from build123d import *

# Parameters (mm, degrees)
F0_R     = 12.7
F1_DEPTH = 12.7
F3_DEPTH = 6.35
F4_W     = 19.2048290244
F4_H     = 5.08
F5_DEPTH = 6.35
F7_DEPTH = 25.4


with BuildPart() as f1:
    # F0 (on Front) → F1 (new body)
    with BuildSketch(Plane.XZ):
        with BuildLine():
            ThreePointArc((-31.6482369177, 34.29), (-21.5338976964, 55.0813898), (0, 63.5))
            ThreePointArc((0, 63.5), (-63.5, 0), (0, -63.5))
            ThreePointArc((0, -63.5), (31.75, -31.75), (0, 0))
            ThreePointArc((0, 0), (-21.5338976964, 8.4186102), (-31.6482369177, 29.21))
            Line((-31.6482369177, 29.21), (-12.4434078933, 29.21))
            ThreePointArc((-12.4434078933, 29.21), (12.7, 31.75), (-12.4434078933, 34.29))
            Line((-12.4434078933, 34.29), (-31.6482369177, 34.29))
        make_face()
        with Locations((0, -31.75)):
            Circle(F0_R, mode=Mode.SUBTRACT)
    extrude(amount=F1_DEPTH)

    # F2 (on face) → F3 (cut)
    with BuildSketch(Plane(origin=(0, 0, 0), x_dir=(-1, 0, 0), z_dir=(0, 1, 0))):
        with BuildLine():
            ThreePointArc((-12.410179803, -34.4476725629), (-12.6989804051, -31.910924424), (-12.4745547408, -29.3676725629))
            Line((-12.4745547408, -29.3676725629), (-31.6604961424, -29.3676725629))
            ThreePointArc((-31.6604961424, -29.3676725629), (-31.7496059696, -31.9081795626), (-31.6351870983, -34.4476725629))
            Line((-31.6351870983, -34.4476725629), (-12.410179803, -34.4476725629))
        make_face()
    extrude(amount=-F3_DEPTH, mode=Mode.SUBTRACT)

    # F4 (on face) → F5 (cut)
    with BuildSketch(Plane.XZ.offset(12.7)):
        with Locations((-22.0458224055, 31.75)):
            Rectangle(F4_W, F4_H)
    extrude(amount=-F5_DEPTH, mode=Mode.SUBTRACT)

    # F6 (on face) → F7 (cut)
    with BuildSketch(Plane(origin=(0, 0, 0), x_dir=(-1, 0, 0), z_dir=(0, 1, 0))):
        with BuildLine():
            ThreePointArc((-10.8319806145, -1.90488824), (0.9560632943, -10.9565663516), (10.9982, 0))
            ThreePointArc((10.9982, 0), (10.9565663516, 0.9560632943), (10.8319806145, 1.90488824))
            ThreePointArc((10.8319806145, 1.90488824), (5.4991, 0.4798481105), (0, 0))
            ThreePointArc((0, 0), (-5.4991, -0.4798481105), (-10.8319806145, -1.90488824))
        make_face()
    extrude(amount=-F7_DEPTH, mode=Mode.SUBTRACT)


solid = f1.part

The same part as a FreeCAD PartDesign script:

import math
import FreeCAD as App
import Part
import Sketcher
from FreeCAD import Vector
Q = App.Units.Quantity

doc = App.newDocument("Part")
body = doc.addObject("PartDesign::Body", "Body")

# Sketch on XZ plane
sketch1 = body.newObject("Sketcher::SketchObject", "Sketch")
sketch1.AttachmentSupport = (doc.getObject("XZ_Plane"), [""])
sketch1.MapMode = "FlatFace"
sketch1.addGeometry([
    Part.ArcOfCircle(Part.Circle(Vector(0, 32, 0), Vector(0, 0, 1), 32), math.radians(90), math.radians(175)),  # 0
    Part.ArcOfCircle(Part.Circle(Vector(0, 0, 0), Vector(0, 0, 1), 64), math.radians(90), math.radians(270)),  # 1
    Part.ArcOfCircle(Part.Circle(Vector(0, -32, 0), Vector(0, 0, 1), 32), math.radians(-90), math.radians(90)),  # 2
    Part.ArcOfCircle(Part.Circle(Vector(0, 32, 0), Vector(0, 0, 1), 32), math.radians(-175), math.radians(-90)),  # 3
    Part.LineSegment(Vector(-32, 29, 0), Vector(-12, 29, 0)),  # 4
    Part.ArcOfCircle(Part.Circle(Vector(0, 32, 0), Vector(0, 0, 1), 13), math.radians(-168), math.radians(168)),  # 5
    Part.LineSegment(Vector(-12, 34, 0), Vector(-32, 34, 0)),  # 6
    Part.Circle(Vector(0, -32, 0), Vector(0, 0, 1), 13),  # 7
], False)
sketch1.addConstraint([
    Sketcher.Constraint("Tangent", 0, 1, 1, 1),
    Sketcher.Constraint("Tangent", 1, 2, 2, 1),
    Sketcher.Constraint("Tangent", 2, 2, 3, 2),
    Sketcher.Constraint("Coincident", 3, 1, 4, 1),
    Sketcher.Constraint("Coincident", 4, 2, 5, 1),
    Sketcher.Constraint("Coincident", 5, 2, 6, 1),
    Sketcher.Constraint("Coincident", 6, 2, 0, 2),
    Sketcher.Constraint("Horizontal", 4),
    Sketcher.Constraint("Horizontal", 6),
    Sketcher.Constraint("Coincident", 1, 3, -1, 1),
    Sketcher.Constraint("Coincident", 2, 2, -1, 1),
    Sketcher.Constraint("Coincident", 3, 3, 0, 3),
    Sketcher.Constraint("Coincident", 5, 3, 0, 3),
    Sketcher.Constraint("Coincident", 7, 3, 2, 3),
    Sketcher.Constraint("Equal", 0, 2),
    Sketcher.Constraint("Equal", 5, 7),
    Sketcher.Constraint("PointOnObject", 0, 3, -2),
    Sketcher.Constraint("Vertical", 4, 2, 5, 2),
    Sketcher.Constraint("Diameter", 7, Q("1 in")),
    Sketcher.Constraint("Radius", 1, Q("2.5 in")),
    Sketcher.Constraint("DistanceY", 3, 1, 0, 3, Q("0.1 in")),
])
pad1 = body.newObject("PartDesign::Pad", "Pad")
pad1.Profile = sketch1
pad1.Length = Q("0.5 in")

# Sketch on XZ plane
sketch2 = body.newObject("Sketcher::SketchObject", "Sketch001")
sketch2.AttachmentSupport = (doc.getObject("XZ_Plane"), [""])
sketch2.MapMode = "FlatFace"
sketch2.addGeometry([
    Part.ArcOfCircle(Part.Circle(Vector(0, -32, 0), Vector(0, 0, 1), 13), math.radians(-12), math.radians(11)),
    Part.LineSegment(Vector(12, -29, 0), Vector(32, -29, 0)),
    Part.ArcOfCircle(Part.Circle(Vector(0, -32, 0), Vector(0, 0, 1), 32), math.radians(-4.87), math.radians(4.3)),
    Part.LineSegment(Vector(32, -34, 0), Vector(12, -34, 0)),
], False)
sketch2.addConstraint([
    Sketcher.Constraint("Coincident", 0, 2, 1, 1),
    Sketcher.Constraint("Coincident", 1, 2, 2, 2),
    Sketcher.Constraint("Coincident", 2, 1, 3, 1),
    Sketcher.Constraint("Coincident", 3, 2, 0, 1),
    Sketcher.Constraint("Horizontal", 1),
    Sketcher.Constraint("Horizontal", 3),
    Sketcher.Constraint("Coincident", 2, 3, 0, 3),
    Sketcher.Constraint("PointOnObject", 0, 3, -2),
    Sketcher.Constraint("Radius", 0, Q("0.5 in")),
    Sketcher.Constraint("Radius", 2, Q("1.25 in")),
    Sketcher.Constraint("DistanceY", 2, 1, 1, 2, Q("0.2 in")),
    Sketcher.Constraint("DistanceY", 0, 3, -1, 1, Q("1.25 in")),
    Sketcher.Constraint("DistanceX", 1, 1, 1, 2, Q("19.185941 mm")),
])
pocket1 = body.newObject("PartDesign::Pocket", "Pocket")
pocket1.Profile = sketch2
pocket1.Length = Q("0.25 in")
pocket1.Reversed = True

# Sketch on XZ plane
sketch3 = body.newObject("Sketcher::SketchObject", "Sketch002")
sketch3.AttachmentSupport = (doc.getObject("XZ_Plane"), [""])
sketch3.MapMode = "FlatFace"
sketch3.AttachmentOffset = App.Placement(Vector(0, 0, 0.5 * 25.4), App.Rotation())
sketch3.addGeometry([
    Part.LineSegment(Vector(-32, 34, 0), Vector(-32, 29, 0)),
    Part.LineSegment(Vector(-32, 29, 0), Vector(-12, 29, 0)),
    Part.LineSegment(Vector(-12, 29, 0), Vector(-12, 34, 0)),
    Part.LineSegment(Vector(-12, 34, 0), Vector(-32, 34, 0)),
], False)
sketch3.addConstraint([
    Sketcher.Constraint("Coincident", 0, 2, 1, 1),
    Sketcher.Constraint("Coincident", 1, 2, 2, 1),
    Sketcher.Constraint("Coincident", 2, 2, 3, 1),
    Sketcher.Constraint("Coincident", 3, 2, 0, 1),
    Sketcher.Constraint("Vertical", 0),
    Sketcher.Constraint("Horizontal", 1),
    Sketcher.Constraint("Vertical", 2),
    Sketcher.Constraint("Horizontal", 3),
    Sketcher.Constraint("DistanceY", 0, 2, 0, 1, Q("0.2 in")),
    Sketcher.Constraint("DistanceY", -1, 1, 0, 2, Q("1.15 in")),
    Sketcher.Constraint("DistanceX", 1, 1, 1, 2, Q("19.204829 mm")),
    Sketcher.Constraint("DistanceX", 0, 2, -1, 1, Q("31.648237 mm")),
])
pocket2 = body.newObject("PartDesign::Pocket", "Pocket001")
pocket2.Profile = sketch3
pocket2.Length = Q("0.25 in")

# Sketch on XZ plane
sketch4 = body.newObject("Sketcher::SketchObject", "Sketch003")
sketch4.AttachmentSupport = (doc.getObject("XZ_Plane"), [""])
sketch4.MapMode = "FlatFace"
sketch4.addGeometry([
    Part.ArcOfCircle(Part.Circle(Vector(0, 0, 0), Vector(0, 0, 1), 11), math.radians(180), math.radians(350)),
    Part.ArcOfCircle(Part.Circle(Vector(0, 0, 0), Vector(0, 0, 1), 11), math.radians(170.03), math.radians(180)),
    Part.ArcOfCircle(Part.Circle(Vector(0, 31.7, 0), Vector(0, 0, 1), 31.7), math.radians(-109.95), math.radians(-90)),
    Part.ArcOfCircle(Part.Circle(Vector(0, -31.7, 0), Vector(0, 0, 1), 31.7), math.radians(70.05), math.radians(90)),
], False)
sketch4.addConstraint([
    Sketcher.Constraint("Tangent", 0, 1, 1, 2),
    Sketcher.Constraint("Coincident", 1, 1, 2, 1),
    Sketcher.Constraint("Tangent", 2, 2, 3, 2),
    Sketcher.Constraint("Coincident", 3, 1, 0, 2),
    Sketcher.Constraint("Coincident", 0, 3, -1, 1),
    Sketcher.Constraint("Coincident", 2, 2, -1, 1),
    Sketcher.Constraint("Equal", 0, 1),
    Sketcher.Constraint("Equal", 2, 3),
    Sketcher.Constraint("PointOnObject", 2, 3, -2),
    Sketcher.Constraint("PointOnObject", 0, 1, -1),
    Sketcher.Constraint("Radius", 2, Q("1.25 in")),
    Sketcher.Constraint("Radius", 0, Q("0.433 in")),
])
pocket3 = body.newObject("PartDesign::Pocket", "Pocket002")
pocket3.Profile = sketch4
pocket3.Length = Q("1 in")
pocket3.Reversed = True

doc.recompute()
